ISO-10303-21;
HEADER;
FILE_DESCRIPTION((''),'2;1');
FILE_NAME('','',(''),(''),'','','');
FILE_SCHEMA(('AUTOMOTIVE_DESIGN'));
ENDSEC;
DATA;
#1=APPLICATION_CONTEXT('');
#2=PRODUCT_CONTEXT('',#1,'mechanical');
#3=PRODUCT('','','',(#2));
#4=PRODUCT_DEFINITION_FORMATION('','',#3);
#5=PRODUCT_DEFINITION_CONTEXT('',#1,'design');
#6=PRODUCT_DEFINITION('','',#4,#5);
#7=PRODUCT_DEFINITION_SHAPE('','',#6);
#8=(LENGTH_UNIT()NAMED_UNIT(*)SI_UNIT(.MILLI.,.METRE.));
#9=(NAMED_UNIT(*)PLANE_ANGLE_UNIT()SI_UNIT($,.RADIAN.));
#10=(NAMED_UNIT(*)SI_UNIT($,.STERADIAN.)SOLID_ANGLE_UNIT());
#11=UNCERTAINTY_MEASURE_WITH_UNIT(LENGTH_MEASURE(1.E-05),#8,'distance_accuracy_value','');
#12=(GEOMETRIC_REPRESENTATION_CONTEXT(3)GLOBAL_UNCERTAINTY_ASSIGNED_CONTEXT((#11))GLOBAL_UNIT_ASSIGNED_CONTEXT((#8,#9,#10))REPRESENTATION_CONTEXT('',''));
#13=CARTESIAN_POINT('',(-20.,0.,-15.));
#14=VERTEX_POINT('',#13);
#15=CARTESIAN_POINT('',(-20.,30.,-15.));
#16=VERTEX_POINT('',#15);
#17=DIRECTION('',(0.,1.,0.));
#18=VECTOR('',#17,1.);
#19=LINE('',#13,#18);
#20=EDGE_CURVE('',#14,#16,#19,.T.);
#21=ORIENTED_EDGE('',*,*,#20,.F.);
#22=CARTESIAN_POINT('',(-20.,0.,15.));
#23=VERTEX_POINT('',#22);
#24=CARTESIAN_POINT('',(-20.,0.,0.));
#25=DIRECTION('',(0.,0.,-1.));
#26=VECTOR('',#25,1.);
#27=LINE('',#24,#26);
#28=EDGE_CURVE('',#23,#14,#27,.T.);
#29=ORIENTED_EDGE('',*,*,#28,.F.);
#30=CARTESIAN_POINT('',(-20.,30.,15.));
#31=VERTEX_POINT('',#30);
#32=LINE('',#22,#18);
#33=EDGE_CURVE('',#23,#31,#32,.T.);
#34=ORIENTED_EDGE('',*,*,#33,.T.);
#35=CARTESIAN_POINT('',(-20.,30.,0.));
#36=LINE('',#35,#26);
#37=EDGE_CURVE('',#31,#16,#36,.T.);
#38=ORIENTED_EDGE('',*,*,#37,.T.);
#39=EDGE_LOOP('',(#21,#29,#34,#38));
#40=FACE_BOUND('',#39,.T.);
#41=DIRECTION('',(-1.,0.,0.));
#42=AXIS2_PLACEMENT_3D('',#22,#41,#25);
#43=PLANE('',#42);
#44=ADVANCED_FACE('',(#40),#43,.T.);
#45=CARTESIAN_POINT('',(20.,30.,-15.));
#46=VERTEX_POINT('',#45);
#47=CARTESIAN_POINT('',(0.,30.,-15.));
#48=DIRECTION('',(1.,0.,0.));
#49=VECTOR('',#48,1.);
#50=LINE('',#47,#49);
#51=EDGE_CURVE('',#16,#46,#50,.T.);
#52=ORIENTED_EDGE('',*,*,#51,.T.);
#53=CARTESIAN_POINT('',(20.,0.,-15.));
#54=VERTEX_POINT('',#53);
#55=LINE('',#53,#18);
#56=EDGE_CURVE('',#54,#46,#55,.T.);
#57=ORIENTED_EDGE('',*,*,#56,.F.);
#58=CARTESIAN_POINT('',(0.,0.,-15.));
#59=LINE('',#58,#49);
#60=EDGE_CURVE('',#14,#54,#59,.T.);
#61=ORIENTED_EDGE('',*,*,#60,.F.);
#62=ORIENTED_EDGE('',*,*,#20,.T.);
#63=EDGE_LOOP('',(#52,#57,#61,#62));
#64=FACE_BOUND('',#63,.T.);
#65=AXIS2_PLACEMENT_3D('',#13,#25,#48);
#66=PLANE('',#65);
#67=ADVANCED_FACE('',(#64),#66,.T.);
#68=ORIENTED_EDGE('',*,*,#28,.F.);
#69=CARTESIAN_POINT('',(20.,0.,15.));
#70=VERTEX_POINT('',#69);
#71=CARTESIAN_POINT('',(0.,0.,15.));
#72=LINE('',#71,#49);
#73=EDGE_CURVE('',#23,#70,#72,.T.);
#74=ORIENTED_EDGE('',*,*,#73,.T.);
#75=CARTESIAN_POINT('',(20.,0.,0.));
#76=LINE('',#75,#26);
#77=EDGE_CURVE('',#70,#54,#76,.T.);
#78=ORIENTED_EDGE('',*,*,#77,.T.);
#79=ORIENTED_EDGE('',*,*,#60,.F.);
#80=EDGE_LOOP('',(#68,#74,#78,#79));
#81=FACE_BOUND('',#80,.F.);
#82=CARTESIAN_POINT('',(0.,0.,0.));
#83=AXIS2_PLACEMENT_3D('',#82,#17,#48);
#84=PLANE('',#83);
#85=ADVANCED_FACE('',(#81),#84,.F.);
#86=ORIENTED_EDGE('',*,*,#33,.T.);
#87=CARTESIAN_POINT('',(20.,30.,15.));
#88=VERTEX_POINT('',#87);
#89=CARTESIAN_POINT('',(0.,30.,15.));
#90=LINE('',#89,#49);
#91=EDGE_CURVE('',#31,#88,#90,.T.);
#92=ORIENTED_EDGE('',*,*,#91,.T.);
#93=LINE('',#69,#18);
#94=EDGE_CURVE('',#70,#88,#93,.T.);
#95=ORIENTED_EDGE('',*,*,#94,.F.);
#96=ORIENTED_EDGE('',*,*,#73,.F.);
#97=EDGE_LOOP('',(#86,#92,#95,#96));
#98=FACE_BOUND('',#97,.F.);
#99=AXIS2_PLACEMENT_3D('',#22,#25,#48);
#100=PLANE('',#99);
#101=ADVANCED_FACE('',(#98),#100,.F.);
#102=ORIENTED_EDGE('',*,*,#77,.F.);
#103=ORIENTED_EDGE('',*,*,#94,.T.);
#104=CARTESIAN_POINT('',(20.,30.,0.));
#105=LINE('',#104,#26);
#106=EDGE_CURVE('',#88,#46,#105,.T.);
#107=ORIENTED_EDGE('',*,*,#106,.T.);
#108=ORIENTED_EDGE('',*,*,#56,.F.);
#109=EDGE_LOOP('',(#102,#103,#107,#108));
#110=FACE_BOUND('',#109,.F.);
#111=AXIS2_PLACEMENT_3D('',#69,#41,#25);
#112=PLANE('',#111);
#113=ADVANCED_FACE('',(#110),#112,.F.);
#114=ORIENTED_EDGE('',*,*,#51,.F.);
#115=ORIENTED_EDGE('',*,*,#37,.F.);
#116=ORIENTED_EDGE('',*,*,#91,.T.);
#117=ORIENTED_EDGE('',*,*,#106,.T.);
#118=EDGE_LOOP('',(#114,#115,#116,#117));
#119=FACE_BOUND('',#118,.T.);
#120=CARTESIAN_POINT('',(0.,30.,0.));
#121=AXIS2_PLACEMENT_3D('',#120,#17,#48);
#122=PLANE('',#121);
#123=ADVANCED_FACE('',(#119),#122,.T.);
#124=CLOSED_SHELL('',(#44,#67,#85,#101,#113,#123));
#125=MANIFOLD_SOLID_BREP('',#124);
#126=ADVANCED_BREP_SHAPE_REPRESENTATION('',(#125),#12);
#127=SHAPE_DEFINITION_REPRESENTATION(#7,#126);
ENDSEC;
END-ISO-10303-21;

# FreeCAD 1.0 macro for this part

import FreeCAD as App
import Part
import Sketcher
from FreeCAD import Vector
Q = App.Units.Quantity

doc = App.newDocument("Part")
params = doc.addObject("Spreadsheet::Sheet", "Params")
for row, (alias, value) in enumerate([
    ("sketch1_width", "40 mm"),
    ("sketch1_height", "30 mm"),
    ("pad1_length", "30 mm"),
], start=1):
    params.set(f"A{row}", alias)
    params.set(f"B{row}", "=" + value)
    params.setAlias(f"B{row}", alias)

body = doc.addObject("PartDesign::Body", "Body")

# Sketch on XZ plane
sketch1 = doc.addObject("Sketcher::SketchObject", "Sketch")
body.addObject(sketch1)
sketch1.AttachmentSupport = (doc.XZ_Plane, [""])
sketch1.MapMode = "FlatFace"
sketch1.addGeometry([
    Part.LineSegment(Vector(-20, -15, 0), Vector(-20, 15, 0)),
    Part.LineSegment(Vector(-20, 15, 0), Vector(20, 15, 0)),
    Part.LineSegment(Vector(20, 15, 0), Vector(20, -15, 0)),
    Part.LineSegment(Vector(20, -15, 0), Vector(-20, -15, 0)),
], False)
sketch1.addConstraint([
    Sketcher.Constraint("Coincident", 0, 2, 1, 1),
    Sketcher.Constraint("Coincident", 1, 2, 2, 1),
    Sketcher.Constraint("Coincident", 2, 2, 3, 1),
    Sketcher.Constraint("Coincident", 3, 2, 0, 1),
    Sketcher.Constraint("Vertical", 0),
    Sketcher.Constraint("Horizontal", 1),
    Sketcher.Constraint("Vertical", 2),
    Sketcher.Constraint("Horizontal", 3),
    Sketcher.Constraint("Symmetric", 0, 2, 2, 2, -1, 1),
    Sketcher.Constraint("DistanceX", 1, 1, 1, 2, Q("40 mm")),
    Sketcher.Constraint("DistanceY", 0, 1, 0, 2, Q("30 mm")),
])
sketch1.setExpression("Constraints[9]", "Params.sketch1_width")
sketch1.setExpression("Constraints[10]", "Params.sketch1_height")
pad1 = doc.addObject("PartDesign::Pad", "Pad")
body.addObject(pad1)
pad1.Profile = sketch1
pad1.setExpression("Length", "Params.pad1_length")
pad1.Reversed = True

doc.recompute()
